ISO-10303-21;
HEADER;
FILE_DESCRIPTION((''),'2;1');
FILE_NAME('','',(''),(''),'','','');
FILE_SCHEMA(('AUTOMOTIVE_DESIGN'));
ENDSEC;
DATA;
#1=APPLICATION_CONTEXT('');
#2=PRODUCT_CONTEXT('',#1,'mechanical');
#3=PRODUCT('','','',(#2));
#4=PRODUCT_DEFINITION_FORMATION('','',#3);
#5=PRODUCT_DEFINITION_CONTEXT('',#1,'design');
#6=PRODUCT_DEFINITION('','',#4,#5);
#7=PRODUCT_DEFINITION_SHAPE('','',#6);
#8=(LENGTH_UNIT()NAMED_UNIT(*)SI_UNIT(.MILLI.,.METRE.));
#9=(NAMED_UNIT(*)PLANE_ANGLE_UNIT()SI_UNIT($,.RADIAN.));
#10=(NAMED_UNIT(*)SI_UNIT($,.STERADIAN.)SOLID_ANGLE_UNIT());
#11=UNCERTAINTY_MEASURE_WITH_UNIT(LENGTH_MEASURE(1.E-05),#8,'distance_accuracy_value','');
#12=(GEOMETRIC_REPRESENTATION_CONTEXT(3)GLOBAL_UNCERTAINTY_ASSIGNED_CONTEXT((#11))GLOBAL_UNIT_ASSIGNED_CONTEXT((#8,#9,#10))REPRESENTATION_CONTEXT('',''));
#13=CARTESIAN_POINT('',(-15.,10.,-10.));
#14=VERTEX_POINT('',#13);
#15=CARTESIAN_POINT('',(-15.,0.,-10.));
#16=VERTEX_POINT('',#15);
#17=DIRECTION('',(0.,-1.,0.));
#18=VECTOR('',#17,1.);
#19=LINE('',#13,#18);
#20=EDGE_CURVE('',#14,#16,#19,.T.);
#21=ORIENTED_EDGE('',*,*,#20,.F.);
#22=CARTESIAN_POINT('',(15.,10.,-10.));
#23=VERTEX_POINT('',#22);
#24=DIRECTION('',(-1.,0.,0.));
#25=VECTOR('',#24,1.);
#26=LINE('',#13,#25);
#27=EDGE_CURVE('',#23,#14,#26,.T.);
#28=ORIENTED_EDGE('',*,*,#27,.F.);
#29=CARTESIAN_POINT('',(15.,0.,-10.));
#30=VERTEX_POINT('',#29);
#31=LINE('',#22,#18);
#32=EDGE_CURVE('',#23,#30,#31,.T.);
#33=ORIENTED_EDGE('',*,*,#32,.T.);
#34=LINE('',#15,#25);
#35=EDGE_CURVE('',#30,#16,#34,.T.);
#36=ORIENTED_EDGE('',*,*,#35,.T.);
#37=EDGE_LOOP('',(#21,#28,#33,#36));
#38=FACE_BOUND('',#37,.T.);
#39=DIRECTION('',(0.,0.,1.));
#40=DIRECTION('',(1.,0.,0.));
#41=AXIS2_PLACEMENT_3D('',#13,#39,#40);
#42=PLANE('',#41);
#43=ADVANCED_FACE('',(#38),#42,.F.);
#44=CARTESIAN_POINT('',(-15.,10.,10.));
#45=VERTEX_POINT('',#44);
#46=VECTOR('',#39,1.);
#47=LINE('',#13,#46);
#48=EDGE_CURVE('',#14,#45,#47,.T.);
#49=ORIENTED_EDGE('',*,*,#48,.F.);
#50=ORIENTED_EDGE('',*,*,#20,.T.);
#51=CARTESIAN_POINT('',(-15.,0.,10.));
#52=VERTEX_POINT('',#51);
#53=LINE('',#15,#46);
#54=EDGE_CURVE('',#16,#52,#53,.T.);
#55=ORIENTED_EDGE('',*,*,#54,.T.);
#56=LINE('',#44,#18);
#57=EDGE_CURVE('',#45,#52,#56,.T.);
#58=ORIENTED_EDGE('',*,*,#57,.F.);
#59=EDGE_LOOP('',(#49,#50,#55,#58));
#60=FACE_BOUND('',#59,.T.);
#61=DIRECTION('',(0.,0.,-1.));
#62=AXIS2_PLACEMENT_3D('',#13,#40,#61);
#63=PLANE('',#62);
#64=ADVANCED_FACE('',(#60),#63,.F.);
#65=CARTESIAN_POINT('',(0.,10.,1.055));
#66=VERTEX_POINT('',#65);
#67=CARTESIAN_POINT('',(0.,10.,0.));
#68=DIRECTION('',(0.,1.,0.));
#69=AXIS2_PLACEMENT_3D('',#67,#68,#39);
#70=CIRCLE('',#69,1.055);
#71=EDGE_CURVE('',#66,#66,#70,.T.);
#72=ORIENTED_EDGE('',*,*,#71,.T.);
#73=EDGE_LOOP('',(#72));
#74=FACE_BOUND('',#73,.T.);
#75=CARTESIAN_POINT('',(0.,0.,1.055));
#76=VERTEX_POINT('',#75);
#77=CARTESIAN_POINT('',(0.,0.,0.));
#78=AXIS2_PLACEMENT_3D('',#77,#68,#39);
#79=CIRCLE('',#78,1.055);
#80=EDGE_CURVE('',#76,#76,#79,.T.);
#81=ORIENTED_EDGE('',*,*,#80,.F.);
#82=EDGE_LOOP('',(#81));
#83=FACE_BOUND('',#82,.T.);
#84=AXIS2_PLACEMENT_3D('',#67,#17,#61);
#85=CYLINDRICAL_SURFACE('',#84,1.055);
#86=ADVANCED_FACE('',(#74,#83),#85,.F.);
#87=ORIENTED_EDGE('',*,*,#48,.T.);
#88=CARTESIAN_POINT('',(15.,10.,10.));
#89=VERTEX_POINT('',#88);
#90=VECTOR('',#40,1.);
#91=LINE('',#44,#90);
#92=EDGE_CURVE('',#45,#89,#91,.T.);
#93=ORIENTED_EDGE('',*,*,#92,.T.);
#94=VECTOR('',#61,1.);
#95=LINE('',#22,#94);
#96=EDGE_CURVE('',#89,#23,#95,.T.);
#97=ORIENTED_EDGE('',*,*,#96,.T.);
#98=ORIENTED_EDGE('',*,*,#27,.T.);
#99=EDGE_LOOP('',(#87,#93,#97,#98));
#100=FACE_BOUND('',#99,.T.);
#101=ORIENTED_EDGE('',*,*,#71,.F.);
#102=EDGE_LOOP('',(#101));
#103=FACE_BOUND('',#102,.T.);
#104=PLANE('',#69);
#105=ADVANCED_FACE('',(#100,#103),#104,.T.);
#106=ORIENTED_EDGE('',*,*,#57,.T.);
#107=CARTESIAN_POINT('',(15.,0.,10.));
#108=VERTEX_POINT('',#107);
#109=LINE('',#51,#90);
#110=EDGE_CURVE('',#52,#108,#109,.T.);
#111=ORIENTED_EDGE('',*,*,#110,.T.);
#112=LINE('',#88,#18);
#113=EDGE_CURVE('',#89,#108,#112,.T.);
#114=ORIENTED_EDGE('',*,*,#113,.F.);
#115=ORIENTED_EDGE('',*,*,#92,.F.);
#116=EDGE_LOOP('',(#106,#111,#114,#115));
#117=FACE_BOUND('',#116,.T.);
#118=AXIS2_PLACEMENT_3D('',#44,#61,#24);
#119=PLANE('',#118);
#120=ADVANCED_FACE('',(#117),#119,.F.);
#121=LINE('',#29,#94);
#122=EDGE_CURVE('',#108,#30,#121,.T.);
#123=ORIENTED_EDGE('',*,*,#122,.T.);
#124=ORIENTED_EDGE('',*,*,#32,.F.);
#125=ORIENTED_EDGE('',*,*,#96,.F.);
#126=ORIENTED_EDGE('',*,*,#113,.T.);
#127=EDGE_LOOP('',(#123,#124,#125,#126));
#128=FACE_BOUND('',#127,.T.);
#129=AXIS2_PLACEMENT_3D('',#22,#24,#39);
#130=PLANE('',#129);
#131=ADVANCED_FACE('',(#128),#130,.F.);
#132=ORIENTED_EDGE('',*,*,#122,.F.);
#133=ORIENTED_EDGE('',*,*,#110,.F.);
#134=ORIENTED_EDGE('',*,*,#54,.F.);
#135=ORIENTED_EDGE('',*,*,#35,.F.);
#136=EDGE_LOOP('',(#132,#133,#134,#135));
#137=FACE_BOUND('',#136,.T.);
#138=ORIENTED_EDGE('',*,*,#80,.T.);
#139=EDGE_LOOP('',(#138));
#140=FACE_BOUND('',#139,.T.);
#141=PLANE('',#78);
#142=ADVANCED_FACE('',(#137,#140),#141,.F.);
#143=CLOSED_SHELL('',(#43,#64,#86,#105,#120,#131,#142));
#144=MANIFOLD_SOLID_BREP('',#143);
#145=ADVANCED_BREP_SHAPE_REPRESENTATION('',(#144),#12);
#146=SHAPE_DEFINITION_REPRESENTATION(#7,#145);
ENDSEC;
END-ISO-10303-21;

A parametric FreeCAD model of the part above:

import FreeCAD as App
import Part
import Sketcher

V = App.Vector
Q = App.Units.Quantity


def add_polygon(sketch, points):
    """Adds a closed chain of lines whose ends are joined by coincident constraints."""
    first, n = sketch.GeometryCount, len(points)
    for a, b in zip(points, points[1:] + points[:1]):
        sketch.addGeometry(Part.LineSegment(App.Vector(*a, 0), App.Vector(*b, 0)), False)
    for i in range(n):
        sketch.addConstraint(Sketcher.Constraint("Coincident", first + i, 2, first + (i + 1) % n, 1))

doc = App.newDocument("Part")
body = doc.addObject("PartDesign::Body", "Body")

# Sketch on XZ plane
sketch1 = body.newObject("Sketcher::SketchObject", "Sketch")
sketch1.AttachmentSupport = (doc.getObject("XZ_Plane"), [""])
sketch1.MapMode = "FlatFace"
add_polygon(sketch1, [(-15, -10), (-15, 10), (15, 10), (15, -10)])  # lines 0-3
sketch1.addGeometry(Part.Circle(V(0, 0, 0), V(0, 0, 1), 1.1), False)  # 4
sketch1.addConstraint(Sketcher.Constraint("Vertical", 0))
sketch1.addConstraint(Sketcher.Constraint("Horizontal", 1))
sketch1.addConstraint(Sketcher.Constraint("Vertical", 2))
sketch1.addConstraint(Sketcher.Constraint("Horizontal", 3))
sketch1.addConstraint(Sketcher.Constraint("Coincident", 4, 3, -1, 1))
sketch1.addConstraint(Sketcher.Constraint("Symmetric", 0, 2, 2, 2, -1, 1))
sketch1.addConstraint(Sketcher.Constraint("Diameter", 4, Q("2.11 mm")))
sketch1.addConstraint(Sketcher.Constraint("DistanceX", 1, 1, 1, 2, Q("30 mm")))
sketch1.addConstraint(Sketcher.Constraint("DistanceY", 0, 1, 0, 2, Q("20 mm")))
pad1 = body.newObject("PartDesign::Pad", "Pad")
pad1.Profile = sketch1
pad1.Length = 10
pad1.Reversed = True

doc.recompute()
